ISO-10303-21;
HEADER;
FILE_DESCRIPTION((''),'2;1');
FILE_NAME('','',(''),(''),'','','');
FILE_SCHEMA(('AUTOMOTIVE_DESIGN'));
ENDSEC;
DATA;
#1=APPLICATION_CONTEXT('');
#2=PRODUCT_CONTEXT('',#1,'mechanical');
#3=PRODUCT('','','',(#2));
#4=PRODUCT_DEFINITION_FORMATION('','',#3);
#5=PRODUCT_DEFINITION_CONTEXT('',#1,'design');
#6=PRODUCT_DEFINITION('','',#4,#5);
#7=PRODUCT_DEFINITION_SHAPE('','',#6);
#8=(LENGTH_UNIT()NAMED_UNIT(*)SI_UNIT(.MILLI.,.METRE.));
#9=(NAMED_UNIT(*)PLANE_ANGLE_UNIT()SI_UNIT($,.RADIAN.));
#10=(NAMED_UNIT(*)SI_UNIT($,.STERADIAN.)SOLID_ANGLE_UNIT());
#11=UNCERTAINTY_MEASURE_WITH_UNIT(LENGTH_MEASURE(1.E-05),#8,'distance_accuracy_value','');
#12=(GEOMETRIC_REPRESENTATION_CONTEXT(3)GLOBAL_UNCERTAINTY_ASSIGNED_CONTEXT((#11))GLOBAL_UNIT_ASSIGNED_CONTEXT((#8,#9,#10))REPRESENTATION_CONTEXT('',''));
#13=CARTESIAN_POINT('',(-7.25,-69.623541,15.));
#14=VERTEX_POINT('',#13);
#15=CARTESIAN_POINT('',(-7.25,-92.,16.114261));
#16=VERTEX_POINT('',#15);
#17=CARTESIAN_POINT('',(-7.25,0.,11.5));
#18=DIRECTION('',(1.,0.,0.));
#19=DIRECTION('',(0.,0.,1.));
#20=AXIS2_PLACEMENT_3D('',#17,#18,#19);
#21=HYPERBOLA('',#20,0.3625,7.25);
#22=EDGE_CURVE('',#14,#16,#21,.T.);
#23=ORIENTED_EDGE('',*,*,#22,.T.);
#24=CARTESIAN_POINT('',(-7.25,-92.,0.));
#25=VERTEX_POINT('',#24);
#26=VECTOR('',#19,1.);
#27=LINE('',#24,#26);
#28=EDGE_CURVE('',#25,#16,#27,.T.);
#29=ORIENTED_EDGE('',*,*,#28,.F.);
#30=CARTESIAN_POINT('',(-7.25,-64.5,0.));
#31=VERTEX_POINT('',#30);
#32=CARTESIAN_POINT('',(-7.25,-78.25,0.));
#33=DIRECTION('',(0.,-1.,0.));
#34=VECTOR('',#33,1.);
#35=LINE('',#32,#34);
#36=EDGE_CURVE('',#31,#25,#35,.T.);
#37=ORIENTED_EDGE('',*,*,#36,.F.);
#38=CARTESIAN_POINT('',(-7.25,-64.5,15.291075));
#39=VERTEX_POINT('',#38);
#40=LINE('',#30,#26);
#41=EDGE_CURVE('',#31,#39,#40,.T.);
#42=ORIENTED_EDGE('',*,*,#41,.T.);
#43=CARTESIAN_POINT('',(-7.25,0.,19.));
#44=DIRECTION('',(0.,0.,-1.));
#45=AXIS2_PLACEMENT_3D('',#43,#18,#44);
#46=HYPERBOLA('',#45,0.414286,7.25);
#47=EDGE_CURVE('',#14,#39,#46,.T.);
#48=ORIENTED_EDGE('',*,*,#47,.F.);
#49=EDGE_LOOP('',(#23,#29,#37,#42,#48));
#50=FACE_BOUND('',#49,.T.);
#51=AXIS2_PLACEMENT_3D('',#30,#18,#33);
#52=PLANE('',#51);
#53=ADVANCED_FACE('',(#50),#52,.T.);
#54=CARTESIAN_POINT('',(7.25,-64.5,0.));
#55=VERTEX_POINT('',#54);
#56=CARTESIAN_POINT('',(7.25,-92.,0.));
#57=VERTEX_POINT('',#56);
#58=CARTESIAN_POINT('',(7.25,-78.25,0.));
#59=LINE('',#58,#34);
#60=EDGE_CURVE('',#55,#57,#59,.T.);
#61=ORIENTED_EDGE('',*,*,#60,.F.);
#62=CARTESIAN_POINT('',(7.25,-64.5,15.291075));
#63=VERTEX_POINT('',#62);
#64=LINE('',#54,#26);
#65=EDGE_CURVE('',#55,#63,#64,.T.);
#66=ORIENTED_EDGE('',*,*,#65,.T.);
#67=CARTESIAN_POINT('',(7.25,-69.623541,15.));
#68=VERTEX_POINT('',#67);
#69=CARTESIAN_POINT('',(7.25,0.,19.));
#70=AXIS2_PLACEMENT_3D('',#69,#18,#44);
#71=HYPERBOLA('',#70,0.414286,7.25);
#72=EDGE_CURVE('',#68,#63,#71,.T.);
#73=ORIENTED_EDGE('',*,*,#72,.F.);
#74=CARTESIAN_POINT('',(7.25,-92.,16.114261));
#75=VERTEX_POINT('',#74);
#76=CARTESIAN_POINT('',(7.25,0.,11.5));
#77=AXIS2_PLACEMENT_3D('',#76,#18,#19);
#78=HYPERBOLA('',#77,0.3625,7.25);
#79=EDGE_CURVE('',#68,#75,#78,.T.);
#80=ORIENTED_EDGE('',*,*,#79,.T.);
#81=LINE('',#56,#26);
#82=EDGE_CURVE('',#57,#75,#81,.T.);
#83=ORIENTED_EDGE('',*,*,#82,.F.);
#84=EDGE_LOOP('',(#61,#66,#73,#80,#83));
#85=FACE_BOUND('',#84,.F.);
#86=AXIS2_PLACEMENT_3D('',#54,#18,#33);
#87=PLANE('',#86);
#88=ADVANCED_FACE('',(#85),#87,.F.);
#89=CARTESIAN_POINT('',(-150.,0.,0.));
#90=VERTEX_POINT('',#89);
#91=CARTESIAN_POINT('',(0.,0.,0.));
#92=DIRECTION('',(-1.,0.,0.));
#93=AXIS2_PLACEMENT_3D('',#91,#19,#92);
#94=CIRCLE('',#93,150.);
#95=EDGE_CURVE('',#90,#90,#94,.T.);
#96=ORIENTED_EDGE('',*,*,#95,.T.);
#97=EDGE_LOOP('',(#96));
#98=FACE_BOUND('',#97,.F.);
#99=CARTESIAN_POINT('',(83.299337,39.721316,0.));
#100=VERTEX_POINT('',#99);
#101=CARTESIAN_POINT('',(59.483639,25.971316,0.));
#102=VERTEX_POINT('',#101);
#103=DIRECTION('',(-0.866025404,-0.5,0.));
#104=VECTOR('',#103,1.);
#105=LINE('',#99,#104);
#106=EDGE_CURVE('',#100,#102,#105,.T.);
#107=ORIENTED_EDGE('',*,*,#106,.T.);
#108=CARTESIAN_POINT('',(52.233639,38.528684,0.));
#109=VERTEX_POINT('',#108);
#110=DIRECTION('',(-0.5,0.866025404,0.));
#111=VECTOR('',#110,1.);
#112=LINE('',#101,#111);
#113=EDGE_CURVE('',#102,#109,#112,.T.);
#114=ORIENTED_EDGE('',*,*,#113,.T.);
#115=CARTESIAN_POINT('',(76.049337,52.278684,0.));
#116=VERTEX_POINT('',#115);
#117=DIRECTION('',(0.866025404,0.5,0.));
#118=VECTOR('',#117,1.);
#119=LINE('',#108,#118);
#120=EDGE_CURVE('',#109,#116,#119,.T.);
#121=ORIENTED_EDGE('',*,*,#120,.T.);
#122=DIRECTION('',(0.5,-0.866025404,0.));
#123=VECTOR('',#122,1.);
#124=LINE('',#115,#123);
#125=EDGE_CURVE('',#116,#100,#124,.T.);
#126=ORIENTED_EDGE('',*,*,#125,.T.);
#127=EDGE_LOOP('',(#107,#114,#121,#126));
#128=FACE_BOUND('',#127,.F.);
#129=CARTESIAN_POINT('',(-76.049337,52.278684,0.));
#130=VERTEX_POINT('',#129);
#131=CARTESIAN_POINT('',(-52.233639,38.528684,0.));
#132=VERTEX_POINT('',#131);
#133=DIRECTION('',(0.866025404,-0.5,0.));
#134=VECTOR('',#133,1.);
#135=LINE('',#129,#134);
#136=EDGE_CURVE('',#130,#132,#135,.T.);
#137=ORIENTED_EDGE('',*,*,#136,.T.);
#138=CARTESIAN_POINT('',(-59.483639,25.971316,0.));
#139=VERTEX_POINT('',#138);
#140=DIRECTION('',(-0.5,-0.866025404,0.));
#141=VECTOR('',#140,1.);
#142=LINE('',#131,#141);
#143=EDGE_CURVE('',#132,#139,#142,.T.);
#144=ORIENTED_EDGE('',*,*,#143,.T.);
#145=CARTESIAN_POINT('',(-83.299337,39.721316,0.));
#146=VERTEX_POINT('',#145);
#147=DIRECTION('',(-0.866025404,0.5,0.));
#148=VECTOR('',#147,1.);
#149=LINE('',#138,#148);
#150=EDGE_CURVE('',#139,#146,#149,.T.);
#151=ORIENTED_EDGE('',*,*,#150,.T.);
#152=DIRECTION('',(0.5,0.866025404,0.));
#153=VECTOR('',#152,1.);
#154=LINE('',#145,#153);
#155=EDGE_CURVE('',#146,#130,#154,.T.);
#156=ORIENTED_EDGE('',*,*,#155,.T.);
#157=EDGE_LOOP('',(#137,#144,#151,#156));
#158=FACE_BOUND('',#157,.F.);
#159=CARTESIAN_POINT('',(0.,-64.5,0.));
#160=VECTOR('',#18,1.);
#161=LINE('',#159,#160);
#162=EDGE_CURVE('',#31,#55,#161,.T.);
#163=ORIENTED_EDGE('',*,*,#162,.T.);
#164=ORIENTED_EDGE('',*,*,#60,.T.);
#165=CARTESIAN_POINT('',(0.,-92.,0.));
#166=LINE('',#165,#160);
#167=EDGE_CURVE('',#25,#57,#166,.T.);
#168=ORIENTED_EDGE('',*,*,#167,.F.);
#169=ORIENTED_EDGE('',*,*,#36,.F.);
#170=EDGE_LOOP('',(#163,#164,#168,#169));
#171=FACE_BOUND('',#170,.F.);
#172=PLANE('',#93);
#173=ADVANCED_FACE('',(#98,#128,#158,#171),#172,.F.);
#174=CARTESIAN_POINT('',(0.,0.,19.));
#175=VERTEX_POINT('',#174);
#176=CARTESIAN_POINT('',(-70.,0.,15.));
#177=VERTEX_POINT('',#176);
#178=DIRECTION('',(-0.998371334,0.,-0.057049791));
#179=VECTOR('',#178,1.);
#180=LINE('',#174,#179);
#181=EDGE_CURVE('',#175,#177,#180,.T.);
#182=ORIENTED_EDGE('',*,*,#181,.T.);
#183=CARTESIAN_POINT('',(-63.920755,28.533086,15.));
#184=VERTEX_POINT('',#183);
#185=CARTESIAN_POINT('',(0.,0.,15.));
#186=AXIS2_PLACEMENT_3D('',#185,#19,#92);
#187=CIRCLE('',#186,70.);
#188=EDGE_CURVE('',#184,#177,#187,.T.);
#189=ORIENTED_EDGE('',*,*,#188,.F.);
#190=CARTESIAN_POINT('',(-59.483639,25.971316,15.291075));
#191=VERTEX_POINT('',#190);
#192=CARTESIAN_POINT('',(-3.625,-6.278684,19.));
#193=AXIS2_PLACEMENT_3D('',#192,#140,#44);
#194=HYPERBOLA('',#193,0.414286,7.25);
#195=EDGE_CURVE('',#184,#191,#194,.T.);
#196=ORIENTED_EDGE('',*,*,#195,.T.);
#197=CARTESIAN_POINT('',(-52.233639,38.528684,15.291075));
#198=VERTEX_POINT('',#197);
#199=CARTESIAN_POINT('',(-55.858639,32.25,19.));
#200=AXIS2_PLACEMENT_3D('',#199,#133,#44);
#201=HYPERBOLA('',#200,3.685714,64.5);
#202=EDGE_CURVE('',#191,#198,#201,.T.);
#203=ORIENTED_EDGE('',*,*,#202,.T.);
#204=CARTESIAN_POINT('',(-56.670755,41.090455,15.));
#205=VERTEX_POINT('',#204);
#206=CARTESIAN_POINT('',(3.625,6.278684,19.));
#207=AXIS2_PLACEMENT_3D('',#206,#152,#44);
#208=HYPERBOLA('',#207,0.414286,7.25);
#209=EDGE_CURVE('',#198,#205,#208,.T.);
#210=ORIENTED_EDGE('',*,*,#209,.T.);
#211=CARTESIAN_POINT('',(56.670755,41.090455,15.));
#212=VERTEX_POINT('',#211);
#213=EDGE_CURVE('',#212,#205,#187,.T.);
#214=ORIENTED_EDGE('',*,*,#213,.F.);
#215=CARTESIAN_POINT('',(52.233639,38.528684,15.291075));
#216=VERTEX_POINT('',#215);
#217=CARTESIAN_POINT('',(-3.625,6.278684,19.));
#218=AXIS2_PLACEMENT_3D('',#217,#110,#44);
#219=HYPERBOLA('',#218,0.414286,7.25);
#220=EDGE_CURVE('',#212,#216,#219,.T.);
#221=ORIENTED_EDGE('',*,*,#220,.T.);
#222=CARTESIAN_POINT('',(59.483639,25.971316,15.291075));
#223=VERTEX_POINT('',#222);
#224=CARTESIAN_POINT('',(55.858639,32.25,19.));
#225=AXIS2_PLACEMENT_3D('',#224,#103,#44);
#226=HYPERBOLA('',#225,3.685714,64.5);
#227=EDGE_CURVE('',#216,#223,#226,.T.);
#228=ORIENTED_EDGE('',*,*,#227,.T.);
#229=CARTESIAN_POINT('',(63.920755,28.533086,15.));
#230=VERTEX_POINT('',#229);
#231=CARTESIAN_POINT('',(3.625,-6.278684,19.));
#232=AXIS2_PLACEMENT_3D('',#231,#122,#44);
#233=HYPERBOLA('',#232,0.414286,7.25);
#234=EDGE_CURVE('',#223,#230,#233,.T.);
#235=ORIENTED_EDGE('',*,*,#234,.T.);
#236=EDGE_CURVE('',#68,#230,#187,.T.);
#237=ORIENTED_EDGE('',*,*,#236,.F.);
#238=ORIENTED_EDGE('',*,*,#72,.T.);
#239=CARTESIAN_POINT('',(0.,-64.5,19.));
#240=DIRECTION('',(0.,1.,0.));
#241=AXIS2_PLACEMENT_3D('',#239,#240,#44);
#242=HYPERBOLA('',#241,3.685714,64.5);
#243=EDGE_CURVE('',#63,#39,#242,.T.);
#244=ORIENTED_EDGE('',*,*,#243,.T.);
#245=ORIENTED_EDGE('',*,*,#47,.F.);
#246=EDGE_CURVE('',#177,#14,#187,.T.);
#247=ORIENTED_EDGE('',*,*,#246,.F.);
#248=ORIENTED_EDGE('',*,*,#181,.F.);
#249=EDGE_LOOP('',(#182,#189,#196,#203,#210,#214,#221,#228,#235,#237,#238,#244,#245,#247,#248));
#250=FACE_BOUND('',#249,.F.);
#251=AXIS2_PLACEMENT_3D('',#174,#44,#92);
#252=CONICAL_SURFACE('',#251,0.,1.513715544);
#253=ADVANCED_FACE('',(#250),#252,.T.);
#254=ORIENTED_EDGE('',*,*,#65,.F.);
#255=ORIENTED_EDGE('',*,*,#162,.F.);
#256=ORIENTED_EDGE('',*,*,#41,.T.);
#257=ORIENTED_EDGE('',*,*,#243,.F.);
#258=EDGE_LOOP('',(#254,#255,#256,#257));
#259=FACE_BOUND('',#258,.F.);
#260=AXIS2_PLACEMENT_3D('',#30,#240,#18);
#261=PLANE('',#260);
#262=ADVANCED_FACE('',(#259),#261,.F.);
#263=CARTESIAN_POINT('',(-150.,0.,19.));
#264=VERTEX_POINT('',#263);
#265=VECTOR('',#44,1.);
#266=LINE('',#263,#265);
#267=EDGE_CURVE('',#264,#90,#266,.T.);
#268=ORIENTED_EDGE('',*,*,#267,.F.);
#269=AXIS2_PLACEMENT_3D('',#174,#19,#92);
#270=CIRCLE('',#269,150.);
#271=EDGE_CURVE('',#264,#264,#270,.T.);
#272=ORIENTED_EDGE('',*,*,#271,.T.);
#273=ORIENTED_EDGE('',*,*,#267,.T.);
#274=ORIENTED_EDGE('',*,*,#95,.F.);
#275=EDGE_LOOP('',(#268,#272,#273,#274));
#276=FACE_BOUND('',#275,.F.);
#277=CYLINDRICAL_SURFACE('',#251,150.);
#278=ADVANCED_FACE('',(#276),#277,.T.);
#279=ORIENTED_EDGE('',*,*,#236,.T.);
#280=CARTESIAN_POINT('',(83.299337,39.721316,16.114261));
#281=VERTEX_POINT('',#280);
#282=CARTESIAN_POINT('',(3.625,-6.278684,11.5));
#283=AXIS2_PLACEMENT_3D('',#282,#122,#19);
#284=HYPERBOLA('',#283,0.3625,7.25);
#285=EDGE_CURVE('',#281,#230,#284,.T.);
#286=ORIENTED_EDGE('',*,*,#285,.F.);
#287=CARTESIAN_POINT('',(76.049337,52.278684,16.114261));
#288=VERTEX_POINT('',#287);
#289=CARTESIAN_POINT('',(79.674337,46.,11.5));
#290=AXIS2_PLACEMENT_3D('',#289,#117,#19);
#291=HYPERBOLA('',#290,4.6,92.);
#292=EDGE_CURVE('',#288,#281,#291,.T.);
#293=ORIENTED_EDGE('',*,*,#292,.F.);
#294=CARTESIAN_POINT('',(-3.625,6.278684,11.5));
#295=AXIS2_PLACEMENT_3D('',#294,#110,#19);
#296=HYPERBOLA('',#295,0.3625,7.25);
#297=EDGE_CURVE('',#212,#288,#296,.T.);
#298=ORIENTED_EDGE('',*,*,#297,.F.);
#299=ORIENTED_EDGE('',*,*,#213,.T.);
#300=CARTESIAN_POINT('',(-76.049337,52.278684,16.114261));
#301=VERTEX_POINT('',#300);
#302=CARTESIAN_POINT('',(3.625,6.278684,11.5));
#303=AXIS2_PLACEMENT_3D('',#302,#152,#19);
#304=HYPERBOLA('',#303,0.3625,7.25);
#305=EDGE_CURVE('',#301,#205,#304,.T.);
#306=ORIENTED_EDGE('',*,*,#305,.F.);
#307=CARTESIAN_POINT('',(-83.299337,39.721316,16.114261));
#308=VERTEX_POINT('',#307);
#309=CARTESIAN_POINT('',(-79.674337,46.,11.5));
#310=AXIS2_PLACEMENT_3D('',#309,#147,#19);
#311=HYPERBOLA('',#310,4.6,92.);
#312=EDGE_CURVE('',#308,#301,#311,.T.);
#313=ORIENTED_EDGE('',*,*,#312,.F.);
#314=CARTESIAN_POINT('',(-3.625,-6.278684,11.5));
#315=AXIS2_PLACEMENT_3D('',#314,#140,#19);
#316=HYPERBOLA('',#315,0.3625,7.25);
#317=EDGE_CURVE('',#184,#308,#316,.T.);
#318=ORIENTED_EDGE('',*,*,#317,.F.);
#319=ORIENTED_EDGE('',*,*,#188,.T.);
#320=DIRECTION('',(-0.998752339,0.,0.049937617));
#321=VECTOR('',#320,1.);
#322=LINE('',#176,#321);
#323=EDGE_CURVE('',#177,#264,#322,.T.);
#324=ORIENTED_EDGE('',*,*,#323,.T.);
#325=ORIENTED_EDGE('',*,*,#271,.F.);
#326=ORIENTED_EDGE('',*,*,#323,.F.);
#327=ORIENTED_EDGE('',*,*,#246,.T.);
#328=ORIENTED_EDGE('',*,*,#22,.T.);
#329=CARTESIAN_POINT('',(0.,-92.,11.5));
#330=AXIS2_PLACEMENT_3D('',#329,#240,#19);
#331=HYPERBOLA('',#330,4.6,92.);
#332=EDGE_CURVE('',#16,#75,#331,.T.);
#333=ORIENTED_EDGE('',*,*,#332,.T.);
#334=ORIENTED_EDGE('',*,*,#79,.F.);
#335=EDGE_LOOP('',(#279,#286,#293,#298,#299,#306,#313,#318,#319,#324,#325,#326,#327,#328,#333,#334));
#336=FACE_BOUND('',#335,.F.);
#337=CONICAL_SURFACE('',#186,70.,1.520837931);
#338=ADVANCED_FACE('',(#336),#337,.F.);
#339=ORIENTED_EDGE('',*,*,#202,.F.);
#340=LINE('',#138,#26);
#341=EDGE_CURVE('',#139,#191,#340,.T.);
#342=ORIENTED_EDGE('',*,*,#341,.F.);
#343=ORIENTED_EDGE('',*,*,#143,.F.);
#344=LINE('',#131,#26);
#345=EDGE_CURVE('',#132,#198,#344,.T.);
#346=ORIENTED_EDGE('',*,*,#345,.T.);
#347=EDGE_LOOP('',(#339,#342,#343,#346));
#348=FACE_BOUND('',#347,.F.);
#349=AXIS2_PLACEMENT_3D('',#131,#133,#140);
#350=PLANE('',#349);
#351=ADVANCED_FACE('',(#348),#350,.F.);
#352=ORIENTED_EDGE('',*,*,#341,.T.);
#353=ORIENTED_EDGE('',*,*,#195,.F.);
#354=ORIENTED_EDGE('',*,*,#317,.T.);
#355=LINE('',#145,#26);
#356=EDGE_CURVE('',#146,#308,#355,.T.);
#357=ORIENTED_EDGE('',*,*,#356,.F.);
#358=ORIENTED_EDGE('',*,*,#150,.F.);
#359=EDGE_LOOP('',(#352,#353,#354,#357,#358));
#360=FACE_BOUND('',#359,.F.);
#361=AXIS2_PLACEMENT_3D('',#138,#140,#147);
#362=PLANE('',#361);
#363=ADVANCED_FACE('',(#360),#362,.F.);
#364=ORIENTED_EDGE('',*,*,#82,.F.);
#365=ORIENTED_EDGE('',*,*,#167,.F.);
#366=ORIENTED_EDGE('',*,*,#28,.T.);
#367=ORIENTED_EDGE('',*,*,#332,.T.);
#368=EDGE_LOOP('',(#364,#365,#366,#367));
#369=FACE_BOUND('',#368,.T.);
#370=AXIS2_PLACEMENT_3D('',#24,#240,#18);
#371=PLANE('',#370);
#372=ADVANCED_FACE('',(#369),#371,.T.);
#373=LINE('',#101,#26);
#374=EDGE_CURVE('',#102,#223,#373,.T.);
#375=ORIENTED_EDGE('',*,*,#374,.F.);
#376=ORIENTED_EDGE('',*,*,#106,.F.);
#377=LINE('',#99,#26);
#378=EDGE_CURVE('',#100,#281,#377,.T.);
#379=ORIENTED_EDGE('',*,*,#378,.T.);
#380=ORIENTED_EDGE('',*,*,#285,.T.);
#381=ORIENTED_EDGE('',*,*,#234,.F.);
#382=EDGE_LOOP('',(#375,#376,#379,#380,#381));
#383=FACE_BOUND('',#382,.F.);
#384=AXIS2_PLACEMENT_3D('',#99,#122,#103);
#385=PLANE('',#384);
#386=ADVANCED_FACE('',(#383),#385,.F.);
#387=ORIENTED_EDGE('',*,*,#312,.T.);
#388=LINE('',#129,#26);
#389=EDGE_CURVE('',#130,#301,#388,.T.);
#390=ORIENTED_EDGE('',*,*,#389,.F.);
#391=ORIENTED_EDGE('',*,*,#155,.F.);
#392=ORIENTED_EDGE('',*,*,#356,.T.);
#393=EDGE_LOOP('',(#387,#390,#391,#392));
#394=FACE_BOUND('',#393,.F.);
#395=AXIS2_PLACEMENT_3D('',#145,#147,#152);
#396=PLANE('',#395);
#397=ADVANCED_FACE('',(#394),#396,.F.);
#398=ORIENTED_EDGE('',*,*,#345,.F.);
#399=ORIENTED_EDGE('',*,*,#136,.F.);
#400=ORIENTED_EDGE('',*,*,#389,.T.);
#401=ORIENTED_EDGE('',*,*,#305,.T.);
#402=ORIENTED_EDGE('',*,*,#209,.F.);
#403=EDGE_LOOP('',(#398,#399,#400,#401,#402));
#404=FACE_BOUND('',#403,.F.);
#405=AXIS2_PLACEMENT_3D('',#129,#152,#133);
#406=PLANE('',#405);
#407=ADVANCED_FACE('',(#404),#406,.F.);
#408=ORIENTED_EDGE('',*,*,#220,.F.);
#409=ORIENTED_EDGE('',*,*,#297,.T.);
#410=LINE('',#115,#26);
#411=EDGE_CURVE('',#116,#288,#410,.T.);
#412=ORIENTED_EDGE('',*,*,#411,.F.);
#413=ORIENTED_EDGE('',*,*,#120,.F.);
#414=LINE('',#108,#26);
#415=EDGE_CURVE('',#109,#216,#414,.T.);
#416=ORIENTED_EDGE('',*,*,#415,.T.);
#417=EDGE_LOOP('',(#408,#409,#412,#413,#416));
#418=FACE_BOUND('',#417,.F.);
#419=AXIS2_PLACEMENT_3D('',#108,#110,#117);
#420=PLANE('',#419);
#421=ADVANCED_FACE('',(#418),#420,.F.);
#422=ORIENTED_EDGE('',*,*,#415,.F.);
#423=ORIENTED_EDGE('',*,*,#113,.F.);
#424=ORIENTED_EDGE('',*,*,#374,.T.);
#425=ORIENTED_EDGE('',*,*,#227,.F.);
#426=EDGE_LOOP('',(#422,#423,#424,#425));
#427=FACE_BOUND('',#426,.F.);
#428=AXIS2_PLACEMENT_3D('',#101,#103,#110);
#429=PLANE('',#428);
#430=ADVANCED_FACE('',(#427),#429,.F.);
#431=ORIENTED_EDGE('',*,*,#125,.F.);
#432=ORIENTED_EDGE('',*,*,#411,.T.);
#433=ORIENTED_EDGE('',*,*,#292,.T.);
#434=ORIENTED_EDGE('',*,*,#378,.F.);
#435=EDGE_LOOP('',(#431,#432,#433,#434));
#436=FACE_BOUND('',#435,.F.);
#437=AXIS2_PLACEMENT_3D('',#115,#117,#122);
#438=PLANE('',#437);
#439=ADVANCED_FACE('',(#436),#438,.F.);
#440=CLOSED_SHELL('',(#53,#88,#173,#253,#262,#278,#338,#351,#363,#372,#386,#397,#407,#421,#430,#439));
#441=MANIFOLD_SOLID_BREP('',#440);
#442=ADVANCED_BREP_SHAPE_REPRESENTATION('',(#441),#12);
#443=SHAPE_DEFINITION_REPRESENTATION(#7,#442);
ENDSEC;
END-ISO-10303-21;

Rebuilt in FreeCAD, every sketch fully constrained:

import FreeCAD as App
import Part
import Sketcher
from FreeCAD import Vector
Q = App.Units.Quantity


def add_polygon(sketch, points):
    """Adds a closed chain of lines whose ends are joined by coincident constraints."""
    first, n = sketch.GeometryCount, len(points)
    for a, b in zip(points, points[1:] + points[:1]):
        sketch.addGeometry(Part.LineSegment(App.Vector(*a, 0), App.Vector(*b, 0)), False)
    for i in range(n):
        sketch.addConstraint(Sketcher.Constraint("Coincident", first + i, 2, first + (i + 1) % n, 1))

doc = App.newDocument("Part")
body = doc.addObject("PartDesign::Body", "Body")

sketch1 = doc.addObject("Sketcher::SketchObject", "Sketch")
body.addObject(sketch1)
sketch1.AttachmentSupport = (doc.XZ_Plane, [""])
sketch1.MapMode = "FlatFace"
add_polygon(sketch1, [(-150, 0), (0, 0), (0, 19), (-70, 15), (-150, 19)])
sketch1.addConstraint(Sketcher.Constraint("Horizontal", 0))
sketch1.addConstraint(Sketcher.Constraint("Vertical", 1))
sketch1.addConstraint(Sketcher.Constraint("Vertical", 4))
sketch1.addConstraint(Sketcher.Constraint("Coincident", 0, 2, -1, 1))
sketch1.addConstraint(Sketcher.Constraint("Horizontal", 1, 2, 3, 2))
sketch1.addConstraint(Sketcher.Constraint("DistanceX", 0, 1, 0, 2, Q("150 mm")))
sketch1.addConstraint(Sketcher.Constraint("DistanceY", 1, 1, 1, 2, Q("19 mm")))
sketch1.addConstraint(Sketcher.Constraint("DistanceX", 2, 2, -1, 1, Q("70 mm")))
sketch1.addConstraint(Sketcher.Constraint("DistanceY", -1, 1, 2, 2, Q("15 mm")))
revolution = doc.addObject("PartDesign::Revolution", "Revolution")
body.addObject(revolution)
revolution.Profile = sketch1
revolution.ReferenceAxis = (sketch1, ["V_Axis"])
revolution.Angle = 360

sketch2 = doc.addObject("Sketcher::SketchObject", "Sketch001")
body.addObject(sketch2)
sketch2.AttachmentSupport = (doc.XY_Plane, [""])
sketch2.MapMode = "FlatFace"
add_polygon(sketch2, [(-7, -92), (-7, -64), (7, -64), (7, -92)])
add_polygon(sketch2, [(-52, 39), (-59, 26), (-83, 40), (-76, 52)])
add_polygon(sketch2, [(59, 26), (52, 39), (76, 52), (83, 40)])
sketch2.addConstraint(Sketcher.Constraint("Vertical", 0))
sketch2.addConstraint(Sketcher.Constraint("Horizontal", 1))
sketch2.addConstraint(Sketcher.Constraint("Vertical", 2))
sketch2.addConstraint(Sketcher.Constraint("Horizontal", 3))
sketch2.addConstraint(Sketcher.Constraint("Symmetric", 7, 2, 8, 2, -2))
sketch2.addConstraint(Sketcher.Constraint("Symmetric", 6, 2, 9, 2, -2))
sketch2.addConstraint(Sketcher.Constraint("Symmetric", 5, 2, 10, 2, -2))
sketch2.addConstraint(Sketcher.Constraint("Symmetric", 4, 2, 11, 2, -2))
sketch2.addConstraint(Sketcher.Constraint("Perpendicular", 4, 5))
sketch2.addConstraint(Sketcher.Constraint("Perpendicular", 5, 6))
sketch2.addConstraint(Sketcher.Constraint("Perpendicular", 6, 7))
sketch2.addConstraint(Sketcher.Constraint("Angle", 4, Q("-120 deg")))
sketch2.addConstraint(Sketcher.Constraint("DistanceX", 1, 1, 1, 2, Q("14.5 mm")))
sketch2.addConstraint(Sketcher.Constraint("DistanceY", 0, 1, 0, 2, Q("27.5 mm")))
sketch2.addConstraint(Sketcher.Constraint("DistanceY", 2, 2, -1, 1, Q("92 mm")))
sketch2.addConstraint(Sketcher.Constraint("Distance", 4, Q("14.5 mm")))
sketch2.addConstraint(Sketcher.Constraint("Distance", 5, Q("27.5 mm")))
sketch2.addConstraint(Sketcher.Constraint("DistanceX", 0, 2, -1, 1, Q("7.25 mm")))
sketch2.addConstraint(Sketcher.Constraint("DistanceX", 4, 2, -1, 1, Q("59.483639 mm")))
sketch2.addConstraint(Sketcher.Constraint("DistanceY", -1, 1, 4, 2, Q("25.971316 mm")))
pocket1 = doc.addObject("PartDesign::Pocket", "Pocket")
body.addObject(pocket1)
pocket1.Profile = sketch2
pocket1.Type = "ThroughAll"
pocket1.Reversed = True

doc.recompute()
